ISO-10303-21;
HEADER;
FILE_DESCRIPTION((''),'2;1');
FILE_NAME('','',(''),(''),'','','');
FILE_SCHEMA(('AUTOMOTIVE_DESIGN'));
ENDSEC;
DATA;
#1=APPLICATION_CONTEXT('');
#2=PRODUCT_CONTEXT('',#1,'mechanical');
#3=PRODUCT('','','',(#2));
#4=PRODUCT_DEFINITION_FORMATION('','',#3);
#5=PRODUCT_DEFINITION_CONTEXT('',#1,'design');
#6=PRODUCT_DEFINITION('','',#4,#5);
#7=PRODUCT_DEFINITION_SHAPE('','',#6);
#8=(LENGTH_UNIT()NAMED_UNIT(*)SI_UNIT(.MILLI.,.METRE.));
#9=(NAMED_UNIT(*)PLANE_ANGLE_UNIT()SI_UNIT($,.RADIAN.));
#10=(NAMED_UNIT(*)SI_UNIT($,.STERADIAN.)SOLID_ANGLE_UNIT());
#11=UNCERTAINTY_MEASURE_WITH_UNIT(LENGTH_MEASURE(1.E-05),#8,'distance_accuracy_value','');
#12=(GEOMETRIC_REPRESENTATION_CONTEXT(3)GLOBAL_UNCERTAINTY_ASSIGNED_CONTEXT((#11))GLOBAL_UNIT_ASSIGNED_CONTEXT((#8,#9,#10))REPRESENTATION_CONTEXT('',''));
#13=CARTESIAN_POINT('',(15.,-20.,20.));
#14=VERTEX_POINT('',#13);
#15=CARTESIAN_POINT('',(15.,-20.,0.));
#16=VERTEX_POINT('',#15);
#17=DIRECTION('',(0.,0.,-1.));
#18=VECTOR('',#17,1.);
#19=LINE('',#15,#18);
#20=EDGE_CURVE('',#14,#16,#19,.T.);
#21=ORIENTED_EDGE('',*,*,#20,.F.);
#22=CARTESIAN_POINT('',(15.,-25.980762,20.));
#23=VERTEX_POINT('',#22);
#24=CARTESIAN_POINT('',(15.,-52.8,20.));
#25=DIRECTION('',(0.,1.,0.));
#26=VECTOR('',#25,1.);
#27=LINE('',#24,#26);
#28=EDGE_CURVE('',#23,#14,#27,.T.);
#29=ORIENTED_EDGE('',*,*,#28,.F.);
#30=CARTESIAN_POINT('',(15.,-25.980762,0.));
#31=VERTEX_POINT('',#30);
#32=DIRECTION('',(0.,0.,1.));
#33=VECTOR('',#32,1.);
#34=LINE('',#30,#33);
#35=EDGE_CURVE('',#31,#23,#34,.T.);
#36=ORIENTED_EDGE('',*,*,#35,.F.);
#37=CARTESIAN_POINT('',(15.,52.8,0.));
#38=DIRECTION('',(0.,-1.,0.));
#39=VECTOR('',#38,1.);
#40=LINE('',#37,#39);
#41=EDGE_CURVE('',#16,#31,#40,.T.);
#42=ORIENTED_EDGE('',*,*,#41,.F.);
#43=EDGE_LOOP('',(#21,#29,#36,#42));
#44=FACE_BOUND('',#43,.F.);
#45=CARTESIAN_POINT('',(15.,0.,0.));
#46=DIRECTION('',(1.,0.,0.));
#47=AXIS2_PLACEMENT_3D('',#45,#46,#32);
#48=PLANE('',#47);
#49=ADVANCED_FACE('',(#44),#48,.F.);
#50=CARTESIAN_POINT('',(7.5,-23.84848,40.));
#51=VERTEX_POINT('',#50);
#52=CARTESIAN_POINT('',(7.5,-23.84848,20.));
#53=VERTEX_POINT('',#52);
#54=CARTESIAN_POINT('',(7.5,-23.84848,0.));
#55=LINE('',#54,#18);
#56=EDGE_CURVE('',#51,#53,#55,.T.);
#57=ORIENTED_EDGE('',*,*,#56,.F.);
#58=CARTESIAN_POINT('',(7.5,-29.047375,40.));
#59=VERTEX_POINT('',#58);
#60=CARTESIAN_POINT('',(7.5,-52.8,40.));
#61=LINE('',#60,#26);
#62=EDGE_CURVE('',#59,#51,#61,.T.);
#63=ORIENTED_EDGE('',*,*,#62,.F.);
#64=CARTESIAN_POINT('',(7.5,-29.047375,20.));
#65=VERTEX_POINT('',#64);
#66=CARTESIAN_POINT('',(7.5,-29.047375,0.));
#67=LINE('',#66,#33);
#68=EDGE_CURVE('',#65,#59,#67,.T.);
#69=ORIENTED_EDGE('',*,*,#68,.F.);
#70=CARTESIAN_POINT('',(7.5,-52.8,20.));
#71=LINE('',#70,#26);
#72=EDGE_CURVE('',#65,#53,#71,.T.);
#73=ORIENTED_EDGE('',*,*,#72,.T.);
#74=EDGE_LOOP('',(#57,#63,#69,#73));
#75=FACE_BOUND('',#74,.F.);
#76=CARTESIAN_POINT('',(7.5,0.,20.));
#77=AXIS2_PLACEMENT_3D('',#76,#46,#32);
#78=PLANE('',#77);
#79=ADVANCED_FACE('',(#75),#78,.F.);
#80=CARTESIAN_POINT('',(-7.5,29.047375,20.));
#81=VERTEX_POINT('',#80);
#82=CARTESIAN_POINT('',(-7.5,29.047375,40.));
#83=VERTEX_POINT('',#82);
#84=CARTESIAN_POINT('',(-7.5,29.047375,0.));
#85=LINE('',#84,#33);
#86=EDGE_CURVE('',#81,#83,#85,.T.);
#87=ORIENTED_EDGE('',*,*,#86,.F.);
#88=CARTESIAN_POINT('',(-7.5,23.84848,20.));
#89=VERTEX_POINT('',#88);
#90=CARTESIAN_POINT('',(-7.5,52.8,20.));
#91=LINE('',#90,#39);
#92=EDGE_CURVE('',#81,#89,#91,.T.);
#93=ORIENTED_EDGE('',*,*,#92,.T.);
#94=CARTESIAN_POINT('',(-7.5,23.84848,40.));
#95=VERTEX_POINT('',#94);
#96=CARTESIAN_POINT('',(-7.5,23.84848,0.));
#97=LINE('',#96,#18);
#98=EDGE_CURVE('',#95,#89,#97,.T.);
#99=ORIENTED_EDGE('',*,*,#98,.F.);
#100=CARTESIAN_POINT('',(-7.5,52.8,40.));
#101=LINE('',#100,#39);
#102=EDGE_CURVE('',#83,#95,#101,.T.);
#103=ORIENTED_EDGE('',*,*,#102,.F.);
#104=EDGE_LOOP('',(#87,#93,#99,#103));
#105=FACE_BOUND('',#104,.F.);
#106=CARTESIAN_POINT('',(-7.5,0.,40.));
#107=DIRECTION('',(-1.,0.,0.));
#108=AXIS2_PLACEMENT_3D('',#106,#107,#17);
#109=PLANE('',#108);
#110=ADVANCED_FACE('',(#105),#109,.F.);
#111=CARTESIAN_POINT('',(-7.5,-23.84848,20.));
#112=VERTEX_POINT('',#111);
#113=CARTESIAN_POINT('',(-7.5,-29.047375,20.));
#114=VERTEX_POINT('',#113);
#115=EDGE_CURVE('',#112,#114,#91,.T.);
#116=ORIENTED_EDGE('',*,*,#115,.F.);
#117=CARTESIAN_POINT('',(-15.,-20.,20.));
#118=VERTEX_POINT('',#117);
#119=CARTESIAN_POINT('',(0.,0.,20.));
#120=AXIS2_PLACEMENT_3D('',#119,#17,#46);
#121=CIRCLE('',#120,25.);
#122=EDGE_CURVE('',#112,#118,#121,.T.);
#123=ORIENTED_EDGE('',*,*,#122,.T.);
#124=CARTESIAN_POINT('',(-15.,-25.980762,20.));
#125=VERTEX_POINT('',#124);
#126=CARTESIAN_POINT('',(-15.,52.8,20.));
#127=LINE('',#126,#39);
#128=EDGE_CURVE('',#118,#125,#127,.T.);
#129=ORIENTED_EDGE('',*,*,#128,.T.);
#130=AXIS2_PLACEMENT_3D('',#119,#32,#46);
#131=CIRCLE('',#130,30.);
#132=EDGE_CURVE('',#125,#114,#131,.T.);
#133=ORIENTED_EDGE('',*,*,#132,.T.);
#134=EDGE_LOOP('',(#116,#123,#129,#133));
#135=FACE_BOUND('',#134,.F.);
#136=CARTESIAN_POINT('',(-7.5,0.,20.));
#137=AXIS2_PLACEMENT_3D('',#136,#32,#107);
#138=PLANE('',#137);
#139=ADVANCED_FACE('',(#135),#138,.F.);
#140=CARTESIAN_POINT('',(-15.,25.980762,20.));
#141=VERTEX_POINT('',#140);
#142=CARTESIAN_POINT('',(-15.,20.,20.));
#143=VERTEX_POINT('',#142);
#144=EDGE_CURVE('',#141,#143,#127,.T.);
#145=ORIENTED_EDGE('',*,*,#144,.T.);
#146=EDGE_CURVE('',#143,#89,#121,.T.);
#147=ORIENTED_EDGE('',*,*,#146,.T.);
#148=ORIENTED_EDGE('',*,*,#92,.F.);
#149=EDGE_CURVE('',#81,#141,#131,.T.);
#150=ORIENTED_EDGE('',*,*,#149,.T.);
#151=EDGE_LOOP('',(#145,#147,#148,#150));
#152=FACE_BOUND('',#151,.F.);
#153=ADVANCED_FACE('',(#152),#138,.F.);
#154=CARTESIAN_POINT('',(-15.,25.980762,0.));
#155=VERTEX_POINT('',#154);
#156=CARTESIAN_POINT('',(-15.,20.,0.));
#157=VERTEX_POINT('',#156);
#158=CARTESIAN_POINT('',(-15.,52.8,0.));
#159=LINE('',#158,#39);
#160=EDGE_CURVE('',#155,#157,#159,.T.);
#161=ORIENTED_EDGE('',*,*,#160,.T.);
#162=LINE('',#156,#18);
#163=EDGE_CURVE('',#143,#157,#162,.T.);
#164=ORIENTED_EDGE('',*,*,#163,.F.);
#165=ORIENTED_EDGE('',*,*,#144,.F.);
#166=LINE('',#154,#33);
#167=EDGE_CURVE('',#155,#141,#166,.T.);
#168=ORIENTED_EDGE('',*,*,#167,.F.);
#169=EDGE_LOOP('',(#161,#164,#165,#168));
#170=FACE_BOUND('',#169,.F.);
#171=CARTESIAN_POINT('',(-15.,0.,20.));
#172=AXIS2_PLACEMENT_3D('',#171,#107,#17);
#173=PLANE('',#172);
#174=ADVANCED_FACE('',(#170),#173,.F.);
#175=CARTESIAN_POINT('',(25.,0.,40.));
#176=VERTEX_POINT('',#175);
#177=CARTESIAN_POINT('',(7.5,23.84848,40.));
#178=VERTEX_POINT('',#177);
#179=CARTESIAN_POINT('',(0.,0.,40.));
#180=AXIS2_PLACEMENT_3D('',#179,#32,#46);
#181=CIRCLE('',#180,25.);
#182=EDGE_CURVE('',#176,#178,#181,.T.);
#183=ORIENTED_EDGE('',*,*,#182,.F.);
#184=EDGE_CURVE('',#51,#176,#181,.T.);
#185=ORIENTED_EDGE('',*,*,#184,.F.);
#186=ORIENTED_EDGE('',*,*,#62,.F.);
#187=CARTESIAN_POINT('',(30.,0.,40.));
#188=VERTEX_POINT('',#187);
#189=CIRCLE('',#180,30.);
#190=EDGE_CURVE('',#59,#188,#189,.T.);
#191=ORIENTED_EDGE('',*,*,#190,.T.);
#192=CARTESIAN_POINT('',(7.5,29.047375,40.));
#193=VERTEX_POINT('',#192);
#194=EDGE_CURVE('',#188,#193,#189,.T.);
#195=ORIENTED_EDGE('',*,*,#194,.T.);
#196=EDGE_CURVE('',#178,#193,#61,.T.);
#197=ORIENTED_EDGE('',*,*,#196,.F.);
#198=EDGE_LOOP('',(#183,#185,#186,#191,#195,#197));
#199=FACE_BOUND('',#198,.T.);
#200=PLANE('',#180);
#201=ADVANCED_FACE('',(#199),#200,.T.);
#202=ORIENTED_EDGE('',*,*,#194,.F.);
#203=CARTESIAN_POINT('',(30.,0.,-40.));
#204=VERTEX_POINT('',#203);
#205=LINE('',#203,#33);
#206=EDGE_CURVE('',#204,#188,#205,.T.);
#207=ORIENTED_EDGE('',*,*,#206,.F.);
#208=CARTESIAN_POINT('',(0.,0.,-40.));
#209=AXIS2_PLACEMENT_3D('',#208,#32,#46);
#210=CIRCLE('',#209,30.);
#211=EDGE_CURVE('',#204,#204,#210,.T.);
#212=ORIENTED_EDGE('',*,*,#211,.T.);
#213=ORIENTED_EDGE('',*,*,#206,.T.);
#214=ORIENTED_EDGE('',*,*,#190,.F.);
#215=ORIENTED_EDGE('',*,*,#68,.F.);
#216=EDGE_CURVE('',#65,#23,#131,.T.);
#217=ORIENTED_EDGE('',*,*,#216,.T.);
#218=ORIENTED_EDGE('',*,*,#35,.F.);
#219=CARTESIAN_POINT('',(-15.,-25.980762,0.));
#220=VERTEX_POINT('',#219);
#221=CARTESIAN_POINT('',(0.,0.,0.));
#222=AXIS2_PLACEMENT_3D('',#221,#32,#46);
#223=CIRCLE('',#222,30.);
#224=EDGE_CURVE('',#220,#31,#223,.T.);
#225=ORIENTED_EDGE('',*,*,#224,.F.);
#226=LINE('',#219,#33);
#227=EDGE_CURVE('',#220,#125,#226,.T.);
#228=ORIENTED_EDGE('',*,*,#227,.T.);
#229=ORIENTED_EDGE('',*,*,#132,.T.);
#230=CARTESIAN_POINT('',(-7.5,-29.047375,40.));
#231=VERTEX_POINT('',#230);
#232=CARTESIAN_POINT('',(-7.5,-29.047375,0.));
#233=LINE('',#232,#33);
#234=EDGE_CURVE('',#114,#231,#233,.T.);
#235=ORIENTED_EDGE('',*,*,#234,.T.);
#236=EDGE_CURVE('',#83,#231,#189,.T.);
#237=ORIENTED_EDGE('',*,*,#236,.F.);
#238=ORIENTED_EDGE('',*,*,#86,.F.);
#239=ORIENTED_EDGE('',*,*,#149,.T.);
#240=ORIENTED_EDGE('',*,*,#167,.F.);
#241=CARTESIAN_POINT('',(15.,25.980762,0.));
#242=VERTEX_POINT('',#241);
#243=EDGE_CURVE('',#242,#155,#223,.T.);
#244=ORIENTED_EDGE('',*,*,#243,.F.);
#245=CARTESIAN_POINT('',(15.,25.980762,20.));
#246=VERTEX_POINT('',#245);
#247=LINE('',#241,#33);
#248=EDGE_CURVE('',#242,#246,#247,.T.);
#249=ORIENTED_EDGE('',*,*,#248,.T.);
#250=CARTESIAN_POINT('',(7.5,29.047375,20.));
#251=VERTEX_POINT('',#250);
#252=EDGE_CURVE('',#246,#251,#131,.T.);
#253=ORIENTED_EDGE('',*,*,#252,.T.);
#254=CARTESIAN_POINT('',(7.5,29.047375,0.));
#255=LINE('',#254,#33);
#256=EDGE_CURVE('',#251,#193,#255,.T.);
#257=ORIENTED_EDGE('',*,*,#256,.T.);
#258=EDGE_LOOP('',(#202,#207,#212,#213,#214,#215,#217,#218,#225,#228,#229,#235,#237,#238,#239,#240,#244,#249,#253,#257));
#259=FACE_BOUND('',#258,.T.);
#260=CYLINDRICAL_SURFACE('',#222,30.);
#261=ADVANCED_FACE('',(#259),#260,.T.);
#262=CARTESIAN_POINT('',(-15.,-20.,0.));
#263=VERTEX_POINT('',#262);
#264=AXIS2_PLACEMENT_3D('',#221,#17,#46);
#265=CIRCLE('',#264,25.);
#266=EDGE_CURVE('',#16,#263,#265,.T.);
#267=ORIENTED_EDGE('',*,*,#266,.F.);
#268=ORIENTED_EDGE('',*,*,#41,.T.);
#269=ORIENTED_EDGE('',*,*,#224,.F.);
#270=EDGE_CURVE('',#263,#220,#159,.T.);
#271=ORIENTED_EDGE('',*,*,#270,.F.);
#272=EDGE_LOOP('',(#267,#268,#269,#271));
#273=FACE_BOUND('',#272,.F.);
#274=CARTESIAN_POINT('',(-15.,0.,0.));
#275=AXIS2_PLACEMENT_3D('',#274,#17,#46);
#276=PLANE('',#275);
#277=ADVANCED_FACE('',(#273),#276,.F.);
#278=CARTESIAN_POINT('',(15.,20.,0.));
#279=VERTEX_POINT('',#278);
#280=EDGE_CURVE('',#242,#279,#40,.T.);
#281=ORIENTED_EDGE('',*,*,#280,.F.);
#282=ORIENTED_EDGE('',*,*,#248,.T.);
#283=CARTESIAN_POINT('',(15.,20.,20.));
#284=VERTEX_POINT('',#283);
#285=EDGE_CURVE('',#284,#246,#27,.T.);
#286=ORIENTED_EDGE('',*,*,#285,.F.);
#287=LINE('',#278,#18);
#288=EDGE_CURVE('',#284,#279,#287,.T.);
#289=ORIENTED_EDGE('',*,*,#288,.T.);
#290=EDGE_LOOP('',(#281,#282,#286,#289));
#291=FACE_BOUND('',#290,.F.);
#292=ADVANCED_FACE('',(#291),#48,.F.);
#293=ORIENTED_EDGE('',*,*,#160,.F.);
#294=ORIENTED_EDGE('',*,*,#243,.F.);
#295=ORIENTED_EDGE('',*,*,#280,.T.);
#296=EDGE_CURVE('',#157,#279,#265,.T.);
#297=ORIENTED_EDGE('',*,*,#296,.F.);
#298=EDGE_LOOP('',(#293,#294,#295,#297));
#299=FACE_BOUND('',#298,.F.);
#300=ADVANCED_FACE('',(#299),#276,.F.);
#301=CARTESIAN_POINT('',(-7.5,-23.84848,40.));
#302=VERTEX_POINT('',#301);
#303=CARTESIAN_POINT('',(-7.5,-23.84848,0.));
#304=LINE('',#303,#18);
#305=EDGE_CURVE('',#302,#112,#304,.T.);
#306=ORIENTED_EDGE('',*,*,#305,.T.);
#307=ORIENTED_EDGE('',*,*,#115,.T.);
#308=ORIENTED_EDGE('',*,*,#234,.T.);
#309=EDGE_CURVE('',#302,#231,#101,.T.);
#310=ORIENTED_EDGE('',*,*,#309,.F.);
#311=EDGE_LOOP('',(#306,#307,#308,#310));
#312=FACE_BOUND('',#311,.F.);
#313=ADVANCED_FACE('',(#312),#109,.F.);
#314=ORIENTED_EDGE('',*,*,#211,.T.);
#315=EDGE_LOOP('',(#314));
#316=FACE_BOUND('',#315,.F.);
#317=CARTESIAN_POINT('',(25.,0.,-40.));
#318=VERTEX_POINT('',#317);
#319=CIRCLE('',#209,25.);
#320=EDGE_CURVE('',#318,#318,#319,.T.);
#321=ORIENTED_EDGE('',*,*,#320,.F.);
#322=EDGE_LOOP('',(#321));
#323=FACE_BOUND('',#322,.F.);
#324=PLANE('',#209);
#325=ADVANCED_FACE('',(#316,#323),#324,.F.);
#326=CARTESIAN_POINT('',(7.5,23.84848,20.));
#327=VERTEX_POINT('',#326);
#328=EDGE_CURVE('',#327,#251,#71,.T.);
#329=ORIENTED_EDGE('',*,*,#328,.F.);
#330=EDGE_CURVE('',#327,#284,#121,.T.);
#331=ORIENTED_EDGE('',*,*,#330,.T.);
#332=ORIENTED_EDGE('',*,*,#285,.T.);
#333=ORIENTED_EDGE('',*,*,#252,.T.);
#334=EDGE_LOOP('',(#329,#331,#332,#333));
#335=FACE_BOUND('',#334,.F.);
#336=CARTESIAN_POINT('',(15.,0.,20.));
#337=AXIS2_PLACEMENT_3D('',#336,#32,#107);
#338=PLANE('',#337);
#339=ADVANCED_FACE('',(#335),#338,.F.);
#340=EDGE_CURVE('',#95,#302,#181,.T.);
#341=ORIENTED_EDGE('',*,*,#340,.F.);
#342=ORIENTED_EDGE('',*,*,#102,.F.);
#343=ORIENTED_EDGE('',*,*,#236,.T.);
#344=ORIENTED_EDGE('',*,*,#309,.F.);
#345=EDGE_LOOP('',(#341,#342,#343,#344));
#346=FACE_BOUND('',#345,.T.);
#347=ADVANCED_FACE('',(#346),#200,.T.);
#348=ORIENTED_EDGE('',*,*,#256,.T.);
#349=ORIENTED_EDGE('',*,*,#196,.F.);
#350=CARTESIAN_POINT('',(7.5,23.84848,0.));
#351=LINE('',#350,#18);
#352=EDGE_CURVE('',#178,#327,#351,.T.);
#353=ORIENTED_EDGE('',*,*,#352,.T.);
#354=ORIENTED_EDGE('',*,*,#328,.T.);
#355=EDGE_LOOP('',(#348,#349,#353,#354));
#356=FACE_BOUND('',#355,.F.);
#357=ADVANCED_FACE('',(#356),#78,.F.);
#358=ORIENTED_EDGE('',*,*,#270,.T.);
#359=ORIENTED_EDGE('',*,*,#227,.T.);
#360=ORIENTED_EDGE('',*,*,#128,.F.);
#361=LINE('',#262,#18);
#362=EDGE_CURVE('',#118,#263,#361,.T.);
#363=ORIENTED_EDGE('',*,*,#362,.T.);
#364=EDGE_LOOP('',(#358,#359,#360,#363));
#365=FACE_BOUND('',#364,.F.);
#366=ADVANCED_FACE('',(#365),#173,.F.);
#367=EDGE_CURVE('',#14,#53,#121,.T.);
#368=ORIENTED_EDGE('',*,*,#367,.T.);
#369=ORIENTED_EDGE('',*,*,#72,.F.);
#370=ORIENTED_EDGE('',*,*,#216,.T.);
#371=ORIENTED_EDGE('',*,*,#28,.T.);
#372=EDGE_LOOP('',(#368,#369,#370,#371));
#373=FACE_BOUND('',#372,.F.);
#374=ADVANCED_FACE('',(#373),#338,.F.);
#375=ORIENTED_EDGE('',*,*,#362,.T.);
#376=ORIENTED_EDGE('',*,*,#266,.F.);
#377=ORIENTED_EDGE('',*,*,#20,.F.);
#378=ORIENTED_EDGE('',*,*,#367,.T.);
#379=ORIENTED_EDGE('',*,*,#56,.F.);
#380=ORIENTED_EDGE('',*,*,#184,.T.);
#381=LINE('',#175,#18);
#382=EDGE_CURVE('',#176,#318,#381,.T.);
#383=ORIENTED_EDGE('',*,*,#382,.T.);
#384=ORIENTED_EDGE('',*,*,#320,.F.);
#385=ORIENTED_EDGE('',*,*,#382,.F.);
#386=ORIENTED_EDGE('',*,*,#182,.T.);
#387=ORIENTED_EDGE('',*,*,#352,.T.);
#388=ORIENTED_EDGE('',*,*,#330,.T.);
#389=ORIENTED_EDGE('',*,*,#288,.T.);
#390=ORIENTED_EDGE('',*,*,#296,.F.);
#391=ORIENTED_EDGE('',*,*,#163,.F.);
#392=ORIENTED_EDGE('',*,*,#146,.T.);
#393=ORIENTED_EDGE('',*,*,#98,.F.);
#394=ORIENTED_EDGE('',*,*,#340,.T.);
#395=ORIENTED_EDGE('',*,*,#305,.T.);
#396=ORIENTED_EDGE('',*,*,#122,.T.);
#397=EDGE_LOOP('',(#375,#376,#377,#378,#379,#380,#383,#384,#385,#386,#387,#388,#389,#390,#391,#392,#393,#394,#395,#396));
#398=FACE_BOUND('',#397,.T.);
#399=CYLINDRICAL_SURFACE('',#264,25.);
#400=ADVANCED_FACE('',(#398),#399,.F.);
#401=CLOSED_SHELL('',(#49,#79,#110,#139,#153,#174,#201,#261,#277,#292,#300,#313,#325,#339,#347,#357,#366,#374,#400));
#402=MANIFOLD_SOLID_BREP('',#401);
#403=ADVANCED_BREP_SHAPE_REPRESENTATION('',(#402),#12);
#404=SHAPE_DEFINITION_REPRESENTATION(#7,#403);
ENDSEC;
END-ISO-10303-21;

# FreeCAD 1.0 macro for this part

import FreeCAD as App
import Part
import Sketcher
from FreeCAD import Vector
Q = App.Units.Quantity

doc = App.newDocument("Part")
body = doc.addObject("PartDesign::Body", "Body")

# Sketch on XY plane
sketch1 = body.newObject("Sketcher::SketchObject", "Sketch")
sketch1.AttachmentSupport = (doc.getObject("XY_Plane"), [""])
sketch1.MapMode = "FlatFace"
sketch1.addGeometry([
    Part.Circle(Vector(0, 0, 0), Vector(0, 0, 1), 30),
    Part.Circle(Vector(0, 0, 0), Vector(0, 0, 1), 25),
], False)
sketch1.addConstraint([
    Sketcher.Constraint("Coincident", 0, 3, -1, 1),
    Sketcher.Constraint("Coincident", 1, 3, -1, 1),
    Sketcher.Constraint("Diameter", 0, Q("60 mm")),
    Sketcher.Constraint("Diameter", 1, Q("50 mm")),
])
pad1 = body.newObject("PartDesign::Pad", "Pad")
pad1.Profile = sketch1
pad1.Length = 80
pad1.Midplane = True

# Sketch on XZ plane
sketch2 = body.newObject("Sketcher::SketchObject", "Sketch001")
sketch2.AttachmentSupport = (doc.getObject("XZ_Plane"), [""])
sketch2.MapMode = "FlatFace"
sketch2.addGeometry([
    Part.LineSegment(Vector(8, 40, 0), Vector(-8, 40, 0)),  # 0
    Part.LineSegment(Vector(-8, 40, 0), Vector(-8, 20, 0)),  # 1
    Part.LineSegment(Vector(-8, 20, 0), Vector(-15, 20, 0)),  # 2
    Part.LineSegment(Vector(-15, 20, 0), Vector(-15, 0, 0)),  # 3
    Part.LineSegment(Vector(-15, 0, 0), Vector(15, 0, 0)),  # 4
    Part.LineSegment(Vector(15, 0, 0), Vector(15, 20, 0)),  # 5
    Part.LineSegment(Vector(15, 20, 0), Vector(8, 20, 0)),  # 6
    Part.LineSegment(Vector(8, 20, 0), Vector(8, 40, 0)),  # 7
], False)
sketch2.addConstraint([
    Sketcher.Constraint("Coincident", 0, 2, 1, 1),
    Sketcher.Constraint("Coincident", 1, 2, 2, 1),
    Sketcher.Constraint("Coincident", 2, 2, 3, 1),
    Sketcher.Constraint("Coincident", 3, 2, 4, 1),
    Sketcher.Constraint("Coincident", 4, 2, 5, 1),
    Sketcher.Constraint("Coincident", 5, 2, 6, 1),
    Sketcher.Constraint("Coincident", 6, 2, 7, 1),
    Sketcher.Constraint("Coincident", 7, 2, 0, 1),
    Sketcher.Constraint("Horizontal", 0),
    Sketcher.Constraint("Vertical", 1),
    Sketcher.Constraint("Horizontal", 2),
    Sketcher.Constraint("Vertical", 3),
    Sketcher.Constraint("Horizontal", 4),
    Sketcher.Constraint("Vertical", 5),
    Sketcher.Constraint("Horizontal", 6),
    Sketcher.Constraint("Vertical", 7),
    Sketcher.Constraint("Symmetric", 3, 2, 4, 2, -1, 1),
    Sketcher.Constraint("Symmetric", 1, 2, 6, 2, -2),
    Sketcher.Constraint("Equal", 1, 3),
    Sketcher.Constraint("DistanceX", 0, 2, 0, 1, Q("15 mm")),
    Sketcher.Constraint("DistanceX", 4, 1, 4, 2, Q("30 mm")),
    Sketcher.Constraint("DistanceY", 1, 2, 1, 1, Q("20 mm")),
])
pocket1 = body.newObject("PartDesign::Pocket", "Pocket")
pocket1.Profile = sketch2
pocket1.Length = 105.6
pocket1.Midplane = True

doc.recompute()
